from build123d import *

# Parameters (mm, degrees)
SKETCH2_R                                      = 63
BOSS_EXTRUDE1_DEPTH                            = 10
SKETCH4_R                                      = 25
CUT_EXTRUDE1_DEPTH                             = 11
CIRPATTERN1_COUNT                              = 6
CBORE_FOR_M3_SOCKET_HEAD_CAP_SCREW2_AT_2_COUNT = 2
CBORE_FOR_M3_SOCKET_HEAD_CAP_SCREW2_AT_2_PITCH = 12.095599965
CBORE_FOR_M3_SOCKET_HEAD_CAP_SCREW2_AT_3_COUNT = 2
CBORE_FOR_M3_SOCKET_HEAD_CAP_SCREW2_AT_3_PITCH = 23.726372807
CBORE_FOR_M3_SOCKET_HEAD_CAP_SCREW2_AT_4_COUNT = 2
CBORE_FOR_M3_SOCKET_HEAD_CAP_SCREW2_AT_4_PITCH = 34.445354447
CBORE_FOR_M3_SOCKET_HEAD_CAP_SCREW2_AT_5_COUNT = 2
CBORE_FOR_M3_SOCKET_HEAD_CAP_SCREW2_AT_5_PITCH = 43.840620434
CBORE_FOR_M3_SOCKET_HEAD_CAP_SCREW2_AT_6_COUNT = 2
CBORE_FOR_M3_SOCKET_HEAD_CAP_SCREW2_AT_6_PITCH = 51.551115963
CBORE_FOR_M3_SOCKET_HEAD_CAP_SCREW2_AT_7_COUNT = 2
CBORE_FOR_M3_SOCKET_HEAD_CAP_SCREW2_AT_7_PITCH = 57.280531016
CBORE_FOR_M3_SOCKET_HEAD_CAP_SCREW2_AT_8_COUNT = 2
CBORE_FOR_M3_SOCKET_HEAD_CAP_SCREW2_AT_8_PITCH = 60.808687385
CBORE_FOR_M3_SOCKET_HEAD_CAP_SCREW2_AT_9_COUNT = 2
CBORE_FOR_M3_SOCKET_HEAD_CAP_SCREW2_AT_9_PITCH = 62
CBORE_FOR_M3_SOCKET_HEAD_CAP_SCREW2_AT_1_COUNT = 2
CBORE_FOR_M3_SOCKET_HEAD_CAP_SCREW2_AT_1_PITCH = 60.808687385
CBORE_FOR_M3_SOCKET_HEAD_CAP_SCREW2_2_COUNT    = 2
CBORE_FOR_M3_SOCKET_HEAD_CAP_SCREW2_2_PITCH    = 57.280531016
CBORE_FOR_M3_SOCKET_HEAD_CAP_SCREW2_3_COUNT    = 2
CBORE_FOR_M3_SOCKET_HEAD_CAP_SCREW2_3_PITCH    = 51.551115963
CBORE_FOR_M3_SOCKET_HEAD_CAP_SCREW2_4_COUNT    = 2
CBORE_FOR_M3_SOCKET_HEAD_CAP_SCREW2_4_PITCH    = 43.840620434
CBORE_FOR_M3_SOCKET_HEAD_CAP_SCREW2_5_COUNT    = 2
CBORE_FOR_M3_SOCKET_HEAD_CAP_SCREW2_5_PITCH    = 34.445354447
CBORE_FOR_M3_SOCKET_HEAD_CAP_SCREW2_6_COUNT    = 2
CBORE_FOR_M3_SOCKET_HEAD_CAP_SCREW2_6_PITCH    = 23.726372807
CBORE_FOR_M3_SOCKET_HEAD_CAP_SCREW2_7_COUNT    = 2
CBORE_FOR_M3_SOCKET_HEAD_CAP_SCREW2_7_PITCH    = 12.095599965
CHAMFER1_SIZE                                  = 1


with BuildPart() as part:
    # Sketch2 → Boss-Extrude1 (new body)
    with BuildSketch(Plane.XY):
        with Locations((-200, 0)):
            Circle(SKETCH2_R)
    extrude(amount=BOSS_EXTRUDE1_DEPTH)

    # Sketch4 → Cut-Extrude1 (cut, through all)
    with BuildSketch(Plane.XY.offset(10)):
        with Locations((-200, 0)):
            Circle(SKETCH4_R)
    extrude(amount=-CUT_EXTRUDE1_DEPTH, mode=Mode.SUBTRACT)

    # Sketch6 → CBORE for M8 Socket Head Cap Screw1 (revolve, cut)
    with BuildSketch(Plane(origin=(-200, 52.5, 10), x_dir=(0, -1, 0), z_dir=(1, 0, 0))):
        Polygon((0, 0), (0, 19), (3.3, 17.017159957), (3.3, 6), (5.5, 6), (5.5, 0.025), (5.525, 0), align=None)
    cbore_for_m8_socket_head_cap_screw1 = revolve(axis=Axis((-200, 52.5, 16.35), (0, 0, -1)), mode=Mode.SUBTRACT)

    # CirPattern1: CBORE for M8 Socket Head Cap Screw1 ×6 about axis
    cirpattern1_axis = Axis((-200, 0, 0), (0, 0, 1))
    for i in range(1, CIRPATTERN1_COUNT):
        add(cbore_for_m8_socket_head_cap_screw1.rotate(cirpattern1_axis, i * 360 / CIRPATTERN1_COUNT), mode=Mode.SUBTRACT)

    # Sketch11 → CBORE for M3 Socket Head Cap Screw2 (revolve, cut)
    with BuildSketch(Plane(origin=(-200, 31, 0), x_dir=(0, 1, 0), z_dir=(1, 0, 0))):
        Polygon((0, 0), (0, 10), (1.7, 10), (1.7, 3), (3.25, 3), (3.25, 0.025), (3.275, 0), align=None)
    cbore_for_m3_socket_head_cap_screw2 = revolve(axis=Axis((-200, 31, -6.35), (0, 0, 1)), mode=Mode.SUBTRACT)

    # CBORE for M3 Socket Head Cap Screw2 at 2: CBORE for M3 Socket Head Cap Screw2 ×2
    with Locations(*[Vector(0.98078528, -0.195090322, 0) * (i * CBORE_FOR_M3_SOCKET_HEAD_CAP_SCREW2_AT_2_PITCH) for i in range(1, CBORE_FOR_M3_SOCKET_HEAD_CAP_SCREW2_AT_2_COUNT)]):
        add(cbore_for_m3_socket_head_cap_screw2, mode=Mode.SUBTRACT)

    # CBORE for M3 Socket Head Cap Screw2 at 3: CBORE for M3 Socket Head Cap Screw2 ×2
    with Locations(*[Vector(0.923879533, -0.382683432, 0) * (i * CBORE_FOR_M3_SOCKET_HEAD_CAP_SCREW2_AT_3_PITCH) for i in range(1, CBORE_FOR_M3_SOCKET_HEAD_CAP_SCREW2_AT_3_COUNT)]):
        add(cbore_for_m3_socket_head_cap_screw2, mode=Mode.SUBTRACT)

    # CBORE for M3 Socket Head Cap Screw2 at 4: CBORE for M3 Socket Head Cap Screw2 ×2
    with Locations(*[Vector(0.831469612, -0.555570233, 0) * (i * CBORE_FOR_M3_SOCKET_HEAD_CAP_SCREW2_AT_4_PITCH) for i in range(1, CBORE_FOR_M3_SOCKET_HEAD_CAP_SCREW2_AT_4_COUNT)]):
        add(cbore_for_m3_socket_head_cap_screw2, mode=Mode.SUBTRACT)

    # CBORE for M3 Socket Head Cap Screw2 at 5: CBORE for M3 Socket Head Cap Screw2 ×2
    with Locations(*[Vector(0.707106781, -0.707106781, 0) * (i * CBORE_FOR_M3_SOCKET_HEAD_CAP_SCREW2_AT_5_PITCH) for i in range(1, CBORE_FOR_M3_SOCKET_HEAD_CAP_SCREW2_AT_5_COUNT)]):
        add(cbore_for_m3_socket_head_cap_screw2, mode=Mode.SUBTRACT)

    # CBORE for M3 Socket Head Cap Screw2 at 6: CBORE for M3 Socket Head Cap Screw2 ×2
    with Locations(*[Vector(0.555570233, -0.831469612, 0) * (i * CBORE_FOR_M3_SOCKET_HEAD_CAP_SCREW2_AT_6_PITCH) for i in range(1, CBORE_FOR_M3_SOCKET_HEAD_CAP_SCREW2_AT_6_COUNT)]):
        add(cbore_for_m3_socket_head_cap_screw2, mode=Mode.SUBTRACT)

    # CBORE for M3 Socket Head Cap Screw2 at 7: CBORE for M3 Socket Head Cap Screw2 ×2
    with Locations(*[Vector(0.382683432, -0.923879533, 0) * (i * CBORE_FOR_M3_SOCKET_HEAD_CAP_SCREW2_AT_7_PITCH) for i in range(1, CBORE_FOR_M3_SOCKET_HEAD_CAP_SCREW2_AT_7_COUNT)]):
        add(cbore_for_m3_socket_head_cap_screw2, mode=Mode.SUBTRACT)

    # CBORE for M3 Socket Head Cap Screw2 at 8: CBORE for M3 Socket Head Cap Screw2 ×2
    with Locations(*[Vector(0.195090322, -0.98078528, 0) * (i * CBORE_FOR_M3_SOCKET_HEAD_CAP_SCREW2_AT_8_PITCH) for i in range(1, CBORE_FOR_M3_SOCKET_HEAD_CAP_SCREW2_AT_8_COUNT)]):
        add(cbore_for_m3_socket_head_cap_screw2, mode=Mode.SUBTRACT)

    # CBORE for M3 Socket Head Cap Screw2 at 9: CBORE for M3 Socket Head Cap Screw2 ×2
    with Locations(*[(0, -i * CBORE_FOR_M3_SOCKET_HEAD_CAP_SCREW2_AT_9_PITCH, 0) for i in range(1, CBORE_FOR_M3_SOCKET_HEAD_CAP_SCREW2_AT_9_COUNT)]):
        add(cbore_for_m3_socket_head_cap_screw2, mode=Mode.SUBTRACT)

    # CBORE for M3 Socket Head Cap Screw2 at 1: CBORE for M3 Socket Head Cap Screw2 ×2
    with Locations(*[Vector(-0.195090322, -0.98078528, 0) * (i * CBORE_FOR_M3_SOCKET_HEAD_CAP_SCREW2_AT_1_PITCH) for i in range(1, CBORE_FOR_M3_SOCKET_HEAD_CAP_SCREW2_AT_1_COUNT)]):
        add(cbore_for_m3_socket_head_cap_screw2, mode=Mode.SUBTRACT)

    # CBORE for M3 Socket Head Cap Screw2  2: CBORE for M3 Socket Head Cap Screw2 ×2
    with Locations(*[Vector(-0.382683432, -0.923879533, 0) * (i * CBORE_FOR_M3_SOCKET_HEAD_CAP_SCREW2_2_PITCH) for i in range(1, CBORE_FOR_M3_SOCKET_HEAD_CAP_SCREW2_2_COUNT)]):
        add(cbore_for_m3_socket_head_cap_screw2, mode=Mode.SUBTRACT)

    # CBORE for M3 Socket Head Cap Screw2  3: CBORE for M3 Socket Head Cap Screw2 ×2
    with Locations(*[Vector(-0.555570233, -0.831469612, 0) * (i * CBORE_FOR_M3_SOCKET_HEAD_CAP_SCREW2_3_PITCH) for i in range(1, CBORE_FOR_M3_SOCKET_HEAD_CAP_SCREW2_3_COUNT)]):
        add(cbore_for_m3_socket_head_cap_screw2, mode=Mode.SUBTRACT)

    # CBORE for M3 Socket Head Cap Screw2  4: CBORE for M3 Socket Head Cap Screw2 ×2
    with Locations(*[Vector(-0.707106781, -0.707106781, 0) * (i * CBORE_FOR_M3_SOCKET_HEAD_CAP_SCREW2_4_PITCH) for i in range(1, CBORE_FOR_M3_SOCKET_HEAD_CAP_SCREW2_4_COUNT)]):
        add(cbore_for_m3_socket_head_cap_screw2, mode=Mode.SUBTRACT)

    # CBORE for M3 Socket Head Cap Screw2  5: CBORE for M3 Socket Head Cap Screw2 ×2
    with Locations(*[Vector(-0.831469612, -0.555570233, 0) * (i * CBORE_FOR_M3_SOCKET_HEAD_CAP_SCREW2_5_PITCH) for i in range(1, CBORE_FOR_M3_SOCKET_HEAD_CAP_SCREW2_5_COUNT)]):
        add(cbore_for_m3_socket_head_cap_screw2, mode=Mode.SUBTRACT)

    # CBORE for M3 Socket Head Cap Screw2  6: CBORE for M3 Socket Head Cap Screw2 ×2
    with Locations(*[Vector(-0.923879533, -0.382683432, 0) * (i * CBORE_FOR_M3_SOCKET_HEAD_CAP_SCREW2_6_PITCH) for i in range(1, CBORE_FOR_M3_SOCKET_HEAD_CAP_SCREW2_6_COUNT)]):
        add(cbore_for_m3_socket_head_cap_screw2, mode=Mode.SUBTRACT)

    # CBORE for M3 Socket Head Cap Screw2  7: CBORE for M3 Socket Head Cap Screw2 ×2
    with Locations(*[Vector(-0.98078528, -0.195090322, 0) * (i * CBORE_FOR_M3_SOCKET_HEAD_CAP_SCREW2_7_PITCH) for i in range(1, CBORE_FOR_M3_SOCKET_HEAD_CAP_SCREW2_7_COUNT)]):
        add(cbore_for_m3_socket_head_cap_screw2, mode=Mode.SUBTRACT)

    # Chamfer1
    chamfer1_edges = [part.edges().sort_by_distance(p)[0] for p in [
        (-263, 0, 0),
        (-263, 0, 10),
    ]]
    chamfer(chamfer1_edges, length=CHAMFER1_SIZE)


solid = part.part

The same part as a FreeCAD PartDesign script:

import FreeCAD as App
import Part
import Sketcher
from FreeCAD import Vector
Q = App.Units.Quantity


def edges_at(feature, points):
    """Names of the edges that pass closest to the given points."""
    edges = feature.Shape.Edges
    near = lambda p: min(range(len(edges)), key=lambda i: edges[i].distToShape(Part.Vertex(*p))[0])
    return sorted({f"Edge{near(p) + 1}" for p in points})


def add_polygon(sketch, points):
    """Adds a closed chain of lines whose ends are joined by coincident constraints."""
    first, n = sketch.GeometryCount, len(points)
    for a, b in zip(points, points[1:] + points[:1]):
        sketch.addGeometry(Part.LineSegment(App.Vector(*a, 0), App.Vector(*b, 0)), False)
    for i in range(n):
        sketch.addConstraint(Sketcher.Constraint("Coincident", first + i, 2, first + (i + 1) % n, 1))

doc = App.newDocument("Part")
body = doc.addObject("PartDesign::Body", "Body")

sketch1 = body.newObject("Sketcher::SketchObject", "Sketch")
sketch1.AttachmentSupport = (doc.getObject("XY_Plane"), [""])
sketch1.MapMode = "FlatFace"
sketch1.addGeometry(Part.Circle(Vector(-200, 0, 0), Vector(0, 0, 1), 63), False)
sketch1.addConstraint(Sketcher.Constraint("PointOnObject", 0, 3, -1))
sketch1.addConstraint(Sketcher.Constraint("Diameter", 0, 126.0))
sketch1.addConstraint(Sketcher.Constraint("DistanceX", 0, 3, -1, 1, 200.0))
pad1 = body.newObject("PartDesign::Pad", "Pad")
pad1.Profile = sketch1
pad1.Length = 10

sketch2 = body.newObject("Sketcher::SketchObject", "Sketch001")
sketch2.AttachmentSupport = (doc.getObject("XY_Plane"), [""])
sketch2.MapMode = "FlatFace"
sketch2.AttachmentOffset = App.Placement(Vector(0, 0, 10), App.Rotation())
sketch2.addGeometry(Part.Circle(Vector(-200, 0, 0), Vector(0, 0, 1), 25), False)
sketch2.addConstraint(Sketcher.Constraint("PointOnObject", 0, 3, -1))
sketch2.addConstraint(Sketcher.Constraint("Diameter", 0, 50.0))
sketch2.addConstraint(Sketcher.Constraint("DistanceX", 0, 3, -1, 1, 200.0))
pocket1 = body.newObject("PartDesign::Pocket", "Pocket")
pocket1.Profile = sketch2
pocket1.Type = "ThroughAll"

sketch3 = body.newObject("Sketcher::SketchObject", "Sketch002")
sketch3.AttachmentSupport = (doc.getObject("YZ_Plane"), [""])
sketch3.MapMode = "FlatFace"
sketch3.AttachmentOffset = App.Placement(Vector(0, 0, -200), App.Rotation())
add_polygon(sketch3, [(52.5, -9), (52.5, 10), (46.975, 10), (47, 9.975), (47, 4), (49.2, 4), (49.2, -7.01716)])
sketch3.addGeometry(Part.LineSegment(Vector(52.5, 10, 0), Vector(52.5, -9, 0)), True)
sketch3.addConstraint(Sketcher.Constraint("Vertical", 0))
sketch3.addConstraint(Sketcher.Constraint("Horizontal", 1))
sketch3.addConstraint(Sketcher.Constraint("Vertical", 3))
sketch3.addConstraint(Sketcher.Constraint("Horizontal", 4))
sketch3.addConstraint(Sketcher.Constraint("Vertical", 5))
sketch3.addConstraint(Sketcher.Constraint("Vertical", 7))
sketch3.addConstraint(Sketcher.Constraint("Coincident", 7, 1, 0, 2))
sketch3.addConstraint(Sketcher.Constraint("Equal", 0, 7))
sketch3.addConstraint(Sketcher.Constraint("DistanceY", 0, 1, 0, 2, 19.0))
sketch3.addConstraint(Sketcher.Constraint("Angle", 2, Q("-45 deg")))
sketch3.addConstraint(Sketcher.Constraint("Angle", 6, Q("-31 deg")))
sketch3.addConstraint(Sketcher.Constraint("DistanceX", 4, 1, 4, 2, 2.2))
sketch3.addConstraint(Sketcher.Constraint("DistanceY", -1, 1, 0, 2, 10.0))
sketch3.addConstraint(Sketcher.Constraint("DistanceX", -1, 1, 2, 2, 47.0))
sketch3.addConstraint(Sketcher.Constraint("DistanceY", -1, 1, 3, 2, 4.0))
sketch3.addConstraint(Sketcher.Constraint("DistanceX", -1, 1, 0, 2, 52.5))
sketch3.addConstraint(Sketcher.Constraint("DistanceX", 1, 2, 1, 1, 5.525))
groove = body.newObject("PartDesign::Groove", "Groove")
groove.Profile = sketch3
groove.ReferenceAxis = (sketch3, ["Axis0"])
groove.Angle = 360
doc.recompute()

datumline = body.newObject("PartDesign::Line", "DatumLine")
datumline.Placement = App.Placement(Vector(-200, 0, 0), App.Rotation(Vector(0, 0, 1), Vector(0, 0, 1)))
polarpattern = body.newObject("PartDesign::PolarPattern", "PolarPattern")
polarpattern.Originals = [groove]
polarpattern.Axis = (datumline, [""])
polarpattern.Angle = 360
polarpattern.Occurrences = 6
body.Tip = polarpattern

sketch4 = body.newObject("Sketcher::SketchObject", "Sketch003")
sketch4.AttachmentSupport = (doc.getObject("YZ_Plane"), [""])
sketch4.MapMode = "FlatFace"
sketch4.AttachmentOffset = App.Placement(Vector(0, 0, -200), App.Rotation())
add_polygon(sketch4, [(31, 10), (31, 0), (34.275, 0), (34.25, 0.025), (34.25, 3), (32.7, 3), (32.7, 10)])
sketch4.addGeometry(Part.LineSegment(Vector(31, 0, 0), Vector(31, 10, 0)), True)
sketch4.addConstraint(Sketcher.Constraint("Vertical", 0))
sketch4.addConstraint(Sketcher.Constraint("Horizontal", 1))
sketch4.addConstraint(Sketcher.Constraint("Vertical", 3))
sketch4.addConstraint(Sketcher.Constraint("Horizontal", 4))
sketch4.addConstraint(Sketcher.Constraint("Vertical", 5))
sketch4.addConstraint(Sketcher.Constraint("Horizontal", 6))
sketch4.addConstraint(Sketcher.Constraint("Vertical", 7))
sketch4.addConstraint(Sketcher.Constraint("Coincident", 7, 1, 0, 2))
sketch4.addConstraint(Sketcher.Constraint("PointOnObject", 0, 2, -1))
sketch4.addConstraint(Sketcher.Constraint("Horizontal", 5, 2, 7, 2))
sketch4.addConstraint(Sketcher.Constraint("DistanceY", 0, 2, 0, 1, 10.0))
sketch4.addConstraint(Sketcher.Constraint("DistanceY", 5, 1, 5, 2, 7.0))
sketch4.addConstraint(Sketcher.Constraint("Angle", 2, Q("135 deg")))
sketch4.addConstraint(Sketcher.Constraint("DistanceX", 6, 2, 6, 1, 1.7))
sketch4.addConstraint(Sketcher.Constraint("DistanceX", -1, 1, 0, 2, 31.0))
sketch4.addConstraint(Sketcher.Constraint("DistanceX", 4, 2, 4, 1, 1.55))
sketch4.addConstraint(Sketcher.Constraint("DistanceX", 1, 1, 1, 2, 3.275))
groove2 = body.newObject("PartDesign::Groove", "Groove001")
groove2.Profile = sketch4
groove2.ReferenceAxis = (sketch4, ["Axis0"])
groove2.Angle = 360
doc.recompute()

datumline2 = body.newObject("PartDesign::Line", "DatumLine001")
datumline2.Placement = App.Placement(Vector(0, 0, 0), App.Rotation(Vector(0, 0, 1), Vector(0.98078528, -0.195090322, 0)))
linearpattern = body.newObject("PartDesign::LinearPattern", "LinearPattern")
linearpattern.Originals = [groove2]
linearpattern.Direction = (datumline2, [""])
linearpattern.Mode = "offset"
linearpattern.Offset = 12.0956
linearpattern.Occurrences = 2
body.Tip = linearpattern
doc.recompute()

datumline3 = body.newObject("PartDesign::Line", "DatumLine002")
datumline3.Placement = App.Placement(Vector(0, 0, 0), App.Rotation(Vector(0, 0, 1), Vector(0.923879533, -0.382683432, 0)))
linearpattern2 = body.newObject("PartDesign::LinearPattern", "LinearPattern001")
linearpattern2.Originals = [groove2]
linearpattern2.Direction = (datumline3, [""])
linearpattern2.Mode = "offset"
linearpattern2.Offset = 23.726373
linearpattern2.Occurrences = 2
body.Tip = linearpattern2
doc.recompute()

datumline4 = body.newObject("PartDesign::Line", "DatumLine003")
datumline4.Placement = App.Placement(Vector(0, 0, 0), App.Rotation(Vector(0, 0, 1), Vector(0.831469612, -0.555570233, 0)))
linearpattern3 = body.newObject("PartDesign::LinearPattern", "LinearPattern002")
linearpattern3.Originals = [groove2]
linearpattern3.Direction = (datumline4, [""])
linearpattern3.Mode = "offset"
linearpattern3.Offset = 34.445354
linearpattern3.Occurrences = 2
body.Tip = linearpattern3
doc.recompute()

datumline5 = body.newObject("PartDesign::Line", "DatumLine004")
datumline5.Placement = App.Placement(Vector(0, 0, 0), App.Rotation(Vector(0, 0, 1), Vector(0.707106781, -0.707106781, 0)))
linearpattern4 = body.newObject("PartDesign::LinearPattern", "LinearPattern003")
linearpattern4.Originals = [groove2]
linearpattern4.Direction = (datumline5, [""])
linearpattern4.Mode = "offset"
linearpattern4.Offset = 43.84062
linearpattern4.Occurrences = 2
body.Tip = linearpattern4
doc.recompute()

datumline6 = body.newObject("PartDesign::Line", "DatumLine005")
datumline6.Placement = App.Placement(Vector(0, 0, 0), App.Rotation(Vector(0, 0, 1), Vector(0.555570233, -0.831469612, 0)))
linearpattern5 = body.newObject("PartDesign::LinearPattern", "LinearPattern004")
linearpattern5.Originals = [groove2]
linearpattern5.Direction = (datumline6, [""])
linearpattern5.Mode = "offset"
linearpattern5.Offset = 51.551116
linearpattern5.Occurrences = 2
body.Tip = linearpattern5
doc.recompute()

datumline7 = body.newObject("PartDesign::Line", "DatumLine006")
datumline7.Placement = App.Placement(Vector(0, 0, 0), App.Rotation(Vector(0, 0, 1), Vector(0.382683432, -0.923879533, 0)))
linearpattern6 = body.newObject("PartDesign::LinearPattern", "LinearPattern005")
linearpattern6.Originals = [groove2]
linearpattern6.Direction = (datumline7, [""])
linearpattern6.Mode = "offset"
linearpattern6.Offset = 57.280531
linearpattern6.Occurrences = 2
body.Tip = linearpattern6
doc.recompute()

datumline8 = body.newObject("PartDesign::Line", "DatumLine007")
datumline8.Placement = App.Placement(Vector(0, 0, 0), App.Rotation(Vector(0, 0, 1), Vector(0.195090322, -0.98078528, 0)))
linearpattern7 = body.newObject("PartDesign::LinearPattern", "LinearPattern006")
linearpattern7.Originals = [groove2]
linearpattern7.Direction = (datumline8, [""])
linearpattern7.Mode = "offset"
linearpattern7.Offset = 60.808687
linearpattern7.Occurrences = 2
body.Tip = linearpattern7
doc.recompute()

linearpattern8 = body.newObject("PartDesign::LinearPattern", "LinearPattern007")
linearpattern8.Originals = [groove2]
linearpattern8.Direction = (doc.getObject("Y_Axis"), [""])
linearpattern8.Mode = "offset"
linearpattern8.Offset = 62
linearpattern8.Occurrences = 2
linearpattern8.Reversed = True
body.Tip = linearpattern8
doc.recompute()

datumline9 = body.newObject("PartDesign::Line", "DatumLine008")
datumline9.Placement = App.Placement(Vector(0, 0, 0), App.Rotation(Vector(0, 0, 1), Vector(-0.195090322, -0.98078528, 0)))
linearpattern9 = body.newObject("PartDesign::LinearPattern", "LinearPattern008")
linearpattern9.Originals = [groove2]
linearpattern9.Direction = (datumline9, [""])
linearpattern9.Mode = "offset"
linearpattern9.Offset = 60.808687
linearpattern9.Occurrences = 2
body.Tip = linearpattern9
doc.recompute()

datumline10 = body.newObject("PartDesign::Line", "DatumLine009")
datumline10.Placement = App.Placement(Vector(0, 0, 0), App.Rotation(Vector(0, 0, 1), Vector(-0.382683432, -0.923879533, 0)))
linearpattern10 = body.newObject("PartDesign::LinearPattern", "LinearPattern009")
linearpattern10.Originals = [groove2]
linearpattern10.Direction = (datumline10, [""])
linearpattern10.Mode = "offset"
linearpattern10.Offset = 57.280531
linearpattern10.Occurrences = 2
body.Tip = linearpattern10
doc.recompute()

datumline11 = body.newObject("PartDesign::Line", "DatumLine010")
datumline11.Placement = App.Placement(Vector(0, 0, 0), App.Rotation(Vector(0, 0, 1), Vector(-0.555570233, -0.831469612, 0)))
linearpattern11 = body.newObject("PartDesign::LinearPattern", "LinearPattern010")
linearpattern11.Originals = [groove2]
linearpattern11.Direction = (datumline11, [""])
linearpattern11.Mode = "offset"
linearpattern11.Offset = 51.551116
linearpattern11.Occurrences = 2
body.Tip = linearpattern11
doc.recompute()

datumline12 = body.newObject("PartDesign::Line", "DatumLine011")
datumline12.Placement = App.Placement(Vector(0, 0, 0), App.Rotation(Vector(0, 0, 1), Vector(-0.707106781, -0.707106781, 0)))
linearpattern12 = body.newObject("PartDesign::LinearPattern", "LinearPattern011")
linearpattern12.Originals = [groove2]
linearpattern12.Direction = (datumline12, [""])
linearpattern12.Mode = "offset"
linearpattern12.Offset = 43.84062
linearpattern12.Occurrences = 2
body.Tip = linearpattern12
doc.recompute()

datumline13 = body.newObject("PartDesign::Line", "DatumLine012")
datumline13.Placement = App.Placement(Vector(0, 0, 0), App.Rotation(Vector(0, 0, 1), Vector(-0.831469612, -0.555570233, 0)))
linearpattern13 = body.newObject("PartDesign::LinearPattern", "LinearPattern012")
linearpattern13.Originals = [groove2]
linearpattern13.Direction = (datumline13, [""])
linearpattern13.Mode = "offset"
linearpattern13.Offset = 34.445354
linearpattern13.Occurrences = 2
body.Tip = linearpattern13
doc.recompute()

datumline14 = body.newObject("PartDesign::Line", "DatumLine013")
datumline14.Placement = App.Placement(Vector(0, 0, 0), App.Rotation(Vector(0, 0, 1), Vector(-0.923879533, -0.382683432, 0)))
linearpattern14 = body.newObject("PartDesign::LinearPattern", "LinearPattern013")
linearpattern14.Originals = [groove2]
linearpattern14.Direction = (datumline14, [""])
linearpattern14.Mode = "offset"
linearpattern14.Offset = 23.726373
linearpattern14.Occurrences = 2
body.Tip = linearpattern14
doc.recompute()

datumline15 = body.newObject("PartDesign::Line", "DatumLine014")
datumline15.Placement = App.Placement(Vector(0, 0, 0), App.Rotation(Vector(0, 0, 1), Vector(-0.98078528, -0.195090322, 0)))
linearpattern15 = body.newObject("PartDesign::LinearPattern", "LinearPattern014")
linearpattern15.Originals = [groove2]
linearpattern15.Direction = (datumline15, [""])
linearpattern15.Mode = "offset"
linearpattern15.Offset = 12.0956
linearpattern15.Occurrences = 2
body.Tip = linearpattern15
doc.recompute()

chamfer = body.newObject("PartDesign::Chamfer", "Chamfer")
chamfer.Base = (linearpattern15, edges_at(linearpattern15, [(-263, 0, 0), (-263, 0, 10)]))
chamfer.Size = 1

doc.recompute()
